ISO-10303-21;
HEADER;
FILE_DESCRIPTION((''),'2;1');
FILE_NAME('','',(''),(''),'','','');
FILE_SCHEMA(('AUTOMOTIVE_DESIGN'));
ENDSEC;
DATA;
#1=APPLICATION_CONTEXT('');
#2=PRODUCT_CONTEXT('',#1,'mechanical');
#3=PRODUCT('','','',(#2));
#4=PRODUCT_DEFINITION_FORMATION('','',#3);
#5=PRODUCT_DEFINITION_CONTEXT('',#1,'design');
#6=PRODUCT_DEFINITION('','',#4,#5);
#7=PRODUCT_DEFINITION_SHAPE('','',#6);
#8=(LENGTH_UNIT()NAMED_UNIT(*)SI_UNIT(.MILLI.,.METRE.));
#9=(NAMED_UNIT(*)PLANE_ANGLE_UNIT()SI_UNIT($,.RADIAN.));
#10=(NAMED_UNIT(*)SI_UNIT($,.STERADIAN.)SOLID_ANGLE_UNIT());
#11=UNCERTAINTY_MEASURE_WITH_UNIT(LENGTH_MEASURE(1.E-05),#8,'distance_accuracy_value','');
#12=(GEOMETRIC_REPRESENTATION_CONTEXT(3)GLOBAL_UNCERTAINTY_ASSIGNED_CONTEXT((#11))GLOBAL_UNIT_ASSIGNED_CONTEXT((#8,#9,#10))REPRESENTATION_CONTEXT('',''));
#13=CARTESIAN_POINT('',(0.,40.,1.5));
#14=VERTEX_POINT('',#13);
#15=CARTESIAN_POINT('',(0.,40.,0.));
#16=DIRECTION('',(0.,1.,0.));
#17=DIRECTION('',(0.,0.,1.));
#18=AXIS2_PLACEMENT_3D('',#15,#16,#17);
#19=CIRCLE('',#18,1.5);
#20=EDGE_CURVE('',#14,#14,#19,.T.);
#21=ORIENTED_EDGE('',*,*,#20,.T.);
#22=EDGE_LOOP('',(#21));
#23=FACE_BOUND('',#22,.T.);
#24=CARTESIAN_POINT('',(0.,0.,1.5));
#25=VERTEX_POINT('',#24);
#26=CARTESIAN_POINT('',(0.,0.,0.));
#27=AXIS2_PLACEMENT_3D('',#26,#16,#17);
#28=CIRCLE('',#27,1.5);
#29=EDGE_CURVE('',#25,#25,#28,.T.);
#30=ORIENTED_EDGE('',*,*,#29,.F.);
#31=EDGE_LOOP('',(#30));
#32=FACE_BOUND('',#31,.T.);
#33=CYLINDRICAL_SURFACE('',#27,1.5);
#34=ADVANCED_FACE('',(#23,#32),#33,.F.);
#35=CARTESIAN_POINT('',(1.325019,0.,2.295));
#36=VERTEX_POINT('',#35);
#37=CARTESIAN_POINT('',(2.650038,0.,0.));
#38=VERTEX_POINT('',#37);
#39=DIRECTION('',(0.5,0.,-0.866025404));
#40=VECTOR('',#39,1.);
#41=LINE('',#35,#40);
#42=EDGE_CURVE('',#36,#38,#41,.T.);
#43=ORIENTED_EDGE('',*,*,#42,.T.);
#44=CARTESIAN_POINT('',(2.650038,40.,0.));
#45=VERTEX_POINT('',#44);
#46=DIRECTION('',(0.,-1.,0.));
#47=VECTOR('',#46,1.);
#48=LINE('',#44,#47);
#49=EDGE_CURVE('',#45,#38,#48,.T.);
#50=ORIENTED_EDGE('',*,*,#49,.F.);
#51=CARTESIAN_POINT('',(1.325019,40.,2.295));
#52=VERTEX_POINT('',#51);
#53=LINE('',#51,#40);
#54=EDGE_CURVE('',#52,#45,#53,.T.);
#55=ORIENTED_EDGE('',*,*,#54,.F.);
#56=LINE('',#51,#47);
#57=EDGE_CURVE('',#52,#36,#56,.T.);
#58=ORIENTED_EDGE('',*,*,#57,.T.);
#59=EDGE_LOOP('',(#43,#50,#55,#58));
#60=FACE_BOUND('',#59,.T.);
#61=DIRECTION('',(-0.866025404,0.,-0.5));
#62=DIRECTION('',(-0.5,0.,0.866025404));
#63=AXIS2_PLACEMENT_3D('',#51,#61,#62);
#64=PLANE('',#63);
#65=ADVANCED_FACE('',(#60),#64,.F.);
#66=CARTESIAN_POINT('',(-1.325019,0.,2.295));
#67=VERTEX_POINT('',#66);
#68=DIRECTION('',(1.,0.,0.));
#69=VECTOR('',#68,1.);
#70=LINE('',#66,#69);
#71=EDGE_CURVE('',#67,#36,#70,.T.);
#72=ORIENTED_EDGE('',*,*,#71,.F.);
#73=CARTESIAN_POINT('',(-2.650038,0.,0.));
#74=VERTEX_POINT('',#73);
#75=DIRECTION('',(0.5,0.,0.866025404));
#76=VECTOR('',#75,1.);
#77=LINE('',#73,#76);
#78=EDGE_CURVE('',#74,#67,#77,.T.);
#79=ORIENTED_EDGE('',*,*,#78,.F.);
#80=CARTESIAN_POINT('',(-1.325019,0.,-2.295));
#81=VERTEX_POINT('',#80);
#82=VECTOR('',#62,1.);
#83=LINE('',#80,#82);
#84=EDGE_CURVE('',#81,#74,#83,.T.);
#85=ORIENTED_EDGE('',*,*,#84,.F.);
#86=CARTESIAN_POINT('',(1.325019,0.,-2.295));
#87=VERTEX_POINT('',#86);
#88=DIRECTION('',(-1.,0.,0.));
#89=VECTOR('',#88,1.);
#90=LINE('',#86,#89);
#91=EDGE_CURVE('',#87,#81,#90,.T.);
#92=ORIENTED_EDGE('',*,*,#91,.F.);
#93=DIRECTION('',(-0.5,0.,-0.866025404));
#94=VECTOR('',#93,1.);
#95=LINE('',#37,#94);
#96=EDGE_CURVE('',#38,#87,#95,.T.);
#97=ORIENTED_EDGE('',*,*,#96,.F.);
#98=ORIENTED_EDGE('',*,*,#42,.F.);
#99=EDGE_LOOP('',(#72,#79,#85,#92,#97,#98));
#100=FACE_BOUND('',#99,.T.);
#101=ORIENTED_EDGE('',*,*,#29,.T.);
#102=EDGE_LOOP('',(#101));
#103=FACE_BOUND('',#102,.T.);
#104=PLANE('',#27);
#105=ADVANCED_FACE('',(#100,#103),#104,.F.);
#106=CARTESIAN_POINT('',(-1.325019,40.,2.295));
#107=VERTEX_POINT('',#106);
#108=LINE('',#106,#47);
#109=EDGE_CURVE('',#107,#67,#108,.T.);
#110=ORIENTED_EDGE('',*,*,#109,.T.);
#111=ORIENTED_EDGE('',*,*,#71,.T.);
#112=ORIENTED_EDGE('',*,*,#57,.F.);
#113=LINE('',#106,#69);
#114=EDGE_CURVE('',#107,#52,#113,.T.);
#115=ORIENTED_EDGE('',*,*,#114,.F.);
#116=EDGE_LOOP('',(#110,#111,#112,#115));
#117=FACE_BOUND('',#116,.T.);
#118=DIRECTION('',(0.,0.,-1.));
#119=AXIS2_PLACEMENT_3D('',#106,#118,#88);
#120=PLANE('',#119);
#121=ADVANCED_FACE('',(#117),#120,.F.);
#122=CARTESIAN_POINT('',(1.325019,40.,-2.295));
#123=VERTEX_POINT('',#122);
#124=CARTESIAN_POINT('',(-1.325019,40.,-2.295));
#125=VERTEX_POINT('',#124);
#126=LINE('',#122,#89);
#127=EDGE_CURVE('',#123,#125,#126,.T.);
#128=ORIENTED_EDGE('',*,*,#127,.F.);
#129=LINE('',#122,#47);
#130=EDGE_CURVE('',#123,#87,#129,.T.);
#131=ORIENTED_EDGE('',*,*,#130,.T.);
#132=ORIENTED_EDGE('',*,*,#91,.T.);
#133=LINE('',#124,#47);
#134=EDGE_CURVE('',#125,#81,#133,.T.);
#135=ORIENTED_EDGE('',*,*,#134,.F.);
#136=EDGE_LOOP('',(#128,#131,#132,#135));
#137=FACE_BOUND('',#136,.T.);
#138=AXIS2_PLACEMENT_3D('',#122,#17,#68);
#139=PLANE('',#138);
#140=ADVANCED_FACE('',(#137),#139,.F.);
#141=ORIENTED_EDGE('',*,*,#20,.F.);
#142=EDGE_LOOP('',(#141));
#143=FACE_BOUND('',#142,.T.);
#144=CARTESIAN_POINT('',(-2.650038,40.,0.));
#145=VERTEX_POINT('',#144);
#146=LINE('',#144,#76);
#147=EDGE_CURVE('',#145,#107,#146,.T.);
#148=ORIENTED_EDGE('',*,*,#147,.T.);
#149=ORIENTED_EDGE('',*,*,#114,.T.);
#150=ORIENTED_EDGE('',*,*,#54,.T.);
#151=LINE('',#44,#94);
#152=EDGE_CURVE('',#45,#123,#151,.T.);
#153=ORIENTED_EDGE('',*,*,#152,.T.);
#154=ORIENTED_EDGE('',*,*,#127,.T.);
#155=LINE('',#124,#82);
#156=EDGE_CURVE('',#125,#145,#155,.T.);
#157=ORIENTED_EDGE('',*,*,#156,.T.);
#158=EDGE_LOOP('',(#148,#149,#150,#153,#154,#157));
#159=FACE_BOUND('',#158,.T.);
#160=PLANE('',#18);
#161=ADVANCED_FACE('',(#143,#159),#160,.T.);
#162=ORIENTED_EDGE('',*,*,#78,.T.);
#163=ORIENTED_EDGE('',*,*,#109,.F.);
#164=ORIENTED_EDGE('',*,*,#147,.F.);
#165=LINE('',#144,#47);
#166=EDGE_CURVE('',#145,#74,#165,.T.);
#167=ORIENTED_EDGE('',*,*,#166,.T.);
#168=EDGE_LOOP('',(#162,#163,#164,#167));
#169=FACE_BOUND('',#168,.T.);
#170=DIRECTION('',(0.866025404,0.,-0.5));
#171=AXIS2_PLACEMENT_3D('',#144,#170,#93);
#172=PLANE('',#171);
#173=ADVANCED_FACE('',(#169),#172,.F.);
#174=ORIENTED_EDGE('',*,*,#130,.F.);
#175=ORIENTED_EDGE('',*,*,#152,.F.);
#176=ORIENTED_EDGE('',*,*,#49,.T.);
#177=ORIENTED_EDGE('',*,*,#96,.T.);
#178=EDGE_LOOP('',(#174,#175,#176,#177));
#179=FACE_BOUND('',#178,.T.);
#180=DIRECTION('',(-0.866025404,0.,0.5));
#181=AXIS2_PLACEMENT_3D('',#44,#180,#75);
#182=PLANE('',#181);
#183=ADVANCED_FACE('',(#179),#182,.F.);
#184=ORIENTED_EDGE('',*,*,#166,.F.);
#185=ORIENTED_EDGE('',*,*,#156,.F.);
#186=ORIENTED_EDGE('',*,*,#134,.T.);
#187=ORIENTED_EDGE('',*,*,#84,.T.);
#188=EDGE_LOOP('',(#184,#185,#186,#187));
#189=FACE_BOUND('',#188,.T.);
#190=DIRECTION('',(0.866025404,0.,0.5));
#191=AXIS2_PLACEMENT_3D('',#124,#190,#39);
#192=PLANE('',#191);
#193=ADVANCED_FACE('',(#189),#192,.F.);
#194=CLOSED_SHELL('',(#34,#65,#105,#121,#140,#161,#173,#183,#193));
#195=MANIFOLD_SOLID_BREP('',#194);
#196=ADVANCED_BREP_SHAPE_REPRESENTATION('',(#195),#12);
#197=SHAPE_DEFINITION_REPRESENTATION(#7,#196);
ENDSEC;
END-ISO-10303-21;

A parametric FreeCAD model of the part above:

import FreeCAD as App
import Part
import Sketcher
Q = App.Units.Quantity


def add_polygon(sketch, points):
    """Adds a closed chain of lines whose ends are joined by coincident constraints."""
    first, n = sketch.GeometryCount, len(points)
    for a, b in zip(points, points[1:] + points[:1]):
        sketch.addGeometry(Part.LineSegment(App.Vector(*a, 0), App.Vector(*b, 0)), False)
    for i in range(n):
        sketch.addConstraint(Sketcher.Constraint("Coincident", first + i, 2, first + (i + 1) % n, 1))

doc = App.newDocument("Part")
body = doc.addObject("PartDesign::Body", "Body")

# Sketch on XZ plane
sketch1 = body.newObject("Sketcher::SketchObject", "Sketch")
sketch1.AttachmentSupport = (doc.getObject("XZ_Plane"), [""])
sketch1.MapMode = "FlatFace"
add_polygon(sketch1, [(2.7, 0), (1.3, -2.3), (-1.3, -2.3), (-2.7, 0), (-1.3, 2.3), (1.3, 2.3)])  # lines 0-5
sketch1.addConstraint([
    Sketcher.Constraint("Horizontal", 1),
    Sketcher.Constraint("Horizontal", 4),
    Sketcher.Constraint("Symmetric", 0, 2, 3, 2, -1, 1),
    Sketcher.Constraint("Symmetric", 2, 2, 5, 2, -1, 1),
    Sketcher.Constraint("PointOnObject", 2, 2, -1),
    Sketcher.Constraint("Parallel", 2, 5),
    Sketcher.Constraint("Vertical", 1, 2, 3, 2),
    Sketcher.Constraint("Angle", 0, Q("-120 deg")),
    Sketcher.Constraint("DistanceY", 1, 2, 3, 2, Q("4.59 mm")),
    Sketcher.Constraint("DistanceX", 1, 2, 1, 1, Q("2.650038 mm")),
])
pad1 = body.newObject("PartDesign::Pad", "Pad")
pad1.Profile = sketch1
pad1.Length = 40
pad1.Reversed = True

# Sketch on XZ plane
sketch2 = body.newObject("Sketcher::SketchObject", "Sketch001")
sketch2.AttachmentSupport = (doc.getObject("XZ_Plane"), [""])
sketch2.MapMode = "FlatFace"
sketch2.AttachmentOffset = App.Placement(App.Vector(0, 0, -40), App.Rotation())
sketch2.addGeometry(Part.Circle(App.Vector(0, 0, 0), App.Vector(0, 0, 1), 1.5), False)
sketch2.addConstraint([
    Sketcher.Constraint("Coincident", 0, 3, -1, 1),
    Sketcher.Constraint("Diameter", 0, Q("3 mm")),
])
pocket1 = body.newObject("PartDesign::Pocket", "Pocket")
pocket1.Profile = sketch2
pocket1.Length = 40
pocket1.Reversed = True

doc.recompute()
